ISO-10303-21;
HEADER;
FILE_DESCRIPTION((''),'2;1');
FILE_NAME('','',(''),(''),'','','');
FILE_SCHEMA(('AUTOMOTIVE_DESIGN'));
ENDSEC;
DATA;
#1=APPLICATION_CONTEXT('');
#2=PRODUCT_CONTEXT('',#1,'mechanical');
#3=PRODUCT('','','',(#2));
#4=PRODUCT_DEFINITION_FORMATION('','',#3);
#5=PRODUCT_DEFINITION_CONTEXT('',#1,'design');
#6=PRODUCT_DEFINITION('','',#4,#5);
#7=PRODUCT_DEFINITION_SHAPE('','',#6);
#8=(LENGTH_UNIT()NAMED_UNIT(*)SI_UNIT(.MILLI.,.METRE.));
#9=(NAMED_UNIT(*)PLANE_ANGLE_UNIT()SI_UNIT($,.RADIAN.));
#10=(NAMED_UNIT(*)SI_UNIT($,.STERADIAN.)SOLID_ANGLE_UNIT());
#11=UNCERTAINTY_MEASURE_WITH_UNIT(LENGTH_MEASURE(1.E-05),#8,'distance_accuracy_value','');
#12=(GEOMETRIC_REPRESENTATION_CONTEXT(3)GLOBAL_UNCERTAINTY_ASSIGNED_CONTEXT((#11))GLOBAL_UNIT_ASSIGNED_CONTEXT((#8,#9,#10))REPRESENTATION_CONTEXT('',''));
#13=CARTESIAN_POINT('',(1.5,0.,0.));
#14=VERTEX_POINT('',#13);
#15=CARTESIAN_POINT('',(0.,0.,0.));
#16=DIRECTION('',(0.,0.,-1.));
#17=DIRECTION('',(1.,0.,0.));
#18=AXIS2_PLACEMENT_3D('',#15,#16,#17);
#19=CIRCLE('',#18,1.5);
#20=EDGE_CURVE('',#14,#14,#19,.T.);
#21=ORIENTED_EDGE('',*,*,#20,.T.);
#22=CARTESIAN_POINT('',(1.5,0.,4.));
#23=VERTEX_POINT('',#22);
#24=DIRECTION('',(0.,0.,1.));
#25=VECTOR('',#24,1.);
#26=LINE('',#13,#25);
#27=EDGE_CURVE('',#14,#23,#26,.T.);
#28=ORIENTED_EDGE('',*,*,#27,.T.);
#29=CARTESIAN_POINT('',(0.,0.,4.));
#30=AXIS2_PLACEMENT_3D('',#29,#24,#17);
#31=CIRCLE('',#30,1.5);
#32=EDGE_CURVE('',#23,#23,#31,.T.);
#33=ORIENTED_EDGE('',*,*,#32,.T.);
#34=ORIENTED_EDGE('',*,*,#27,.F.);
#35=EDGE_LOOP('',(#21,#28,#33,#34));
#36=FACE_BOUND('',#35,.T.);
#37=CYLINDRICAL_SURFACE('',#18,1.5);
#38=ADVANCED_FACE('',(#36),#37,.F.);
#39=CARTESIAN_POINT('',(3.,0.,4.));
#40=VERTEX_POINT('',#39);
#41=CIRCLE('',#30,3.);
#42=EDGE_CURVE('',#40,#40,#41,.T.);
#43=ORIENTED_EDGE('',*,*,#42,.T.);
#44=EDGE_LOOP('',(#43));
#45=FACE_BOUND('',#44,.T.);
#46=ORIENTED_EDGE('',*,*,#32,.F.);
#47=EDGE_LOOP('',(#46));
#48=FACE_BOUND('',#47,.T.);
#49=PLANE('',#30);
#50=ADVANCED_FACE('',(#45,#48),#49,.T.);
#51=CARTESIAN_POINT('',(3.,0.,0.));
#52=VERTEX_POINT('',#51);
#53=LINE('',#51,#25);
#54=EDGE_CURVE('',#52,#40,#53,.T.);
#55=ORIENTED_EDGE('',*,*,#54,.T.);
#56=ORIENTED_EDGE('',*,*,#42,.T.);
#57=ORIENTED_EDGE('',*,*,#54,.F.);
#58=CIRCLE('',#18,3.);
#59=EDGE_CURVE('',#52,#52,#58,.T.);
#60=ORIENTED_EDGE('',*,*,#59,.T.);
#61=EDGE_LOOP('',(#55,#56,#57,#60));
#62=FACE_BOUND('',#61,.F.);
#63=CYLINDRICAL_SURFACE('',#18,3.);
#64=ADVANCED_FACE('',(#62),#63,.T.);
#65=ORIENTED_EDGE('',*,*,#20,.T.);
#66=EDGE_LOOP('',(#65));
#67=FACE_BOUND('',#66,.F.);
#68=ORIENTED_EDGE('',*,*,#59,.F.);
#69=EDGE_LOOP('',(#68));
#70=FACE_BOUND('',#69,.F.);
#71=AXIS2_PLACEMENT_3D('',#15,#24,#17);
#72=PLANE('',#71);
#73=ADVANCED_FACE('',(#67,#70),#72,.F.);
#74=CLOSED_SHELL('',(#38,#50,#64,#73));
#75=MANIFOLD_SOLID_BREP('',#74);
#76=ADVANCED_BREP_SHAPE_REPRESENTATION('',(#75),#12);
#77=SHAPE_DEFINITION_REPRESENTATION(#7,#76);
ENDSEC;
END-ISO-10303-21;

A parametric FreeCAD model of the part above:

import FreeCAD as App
import Part
import Sketcher
from FreeCAD import Vector
Q = App.Units.Quantity

doc = App.newDocument("Part")
body = doc.addObject("PartDesign::Body", "Body")

# Sketch on XY plane
sketch1 = doc.addObject("Sketcher::SketchObject", "Sketch")
body.addObject(sketch1)
sketch1.AttachmentSupport = (doc.XY_Plane, [""])
sketch1.MapMode = "FlatFace"
sketch1.addGeometry([
    Part.Circle(Vector(0, 0, 0), Vector(0, 0, 1), 3),
    Part.Circle(Vector(0, 0, 0), Vector(0, 0, 1), 1.5),
], False)
sketch1.addConstraint([
    Sketcher.Constraint("Coincident", 0, 3, -1, 1),
    Sketcher.Constraint("Coincident", 1, 3, -1, 1),
    Sketcher.Constraint("Diameter", 0, Q("6 mm")),
    Sketcher.Constraint("Diameter", 1, Q("3 mm")),
])
pad1 = doc.addObject("PartDesign::Pad", "Pad")
body.addObject(pad1)
pad1.Profile = sketch1
pad1.Length = 4

doc.recompute()
